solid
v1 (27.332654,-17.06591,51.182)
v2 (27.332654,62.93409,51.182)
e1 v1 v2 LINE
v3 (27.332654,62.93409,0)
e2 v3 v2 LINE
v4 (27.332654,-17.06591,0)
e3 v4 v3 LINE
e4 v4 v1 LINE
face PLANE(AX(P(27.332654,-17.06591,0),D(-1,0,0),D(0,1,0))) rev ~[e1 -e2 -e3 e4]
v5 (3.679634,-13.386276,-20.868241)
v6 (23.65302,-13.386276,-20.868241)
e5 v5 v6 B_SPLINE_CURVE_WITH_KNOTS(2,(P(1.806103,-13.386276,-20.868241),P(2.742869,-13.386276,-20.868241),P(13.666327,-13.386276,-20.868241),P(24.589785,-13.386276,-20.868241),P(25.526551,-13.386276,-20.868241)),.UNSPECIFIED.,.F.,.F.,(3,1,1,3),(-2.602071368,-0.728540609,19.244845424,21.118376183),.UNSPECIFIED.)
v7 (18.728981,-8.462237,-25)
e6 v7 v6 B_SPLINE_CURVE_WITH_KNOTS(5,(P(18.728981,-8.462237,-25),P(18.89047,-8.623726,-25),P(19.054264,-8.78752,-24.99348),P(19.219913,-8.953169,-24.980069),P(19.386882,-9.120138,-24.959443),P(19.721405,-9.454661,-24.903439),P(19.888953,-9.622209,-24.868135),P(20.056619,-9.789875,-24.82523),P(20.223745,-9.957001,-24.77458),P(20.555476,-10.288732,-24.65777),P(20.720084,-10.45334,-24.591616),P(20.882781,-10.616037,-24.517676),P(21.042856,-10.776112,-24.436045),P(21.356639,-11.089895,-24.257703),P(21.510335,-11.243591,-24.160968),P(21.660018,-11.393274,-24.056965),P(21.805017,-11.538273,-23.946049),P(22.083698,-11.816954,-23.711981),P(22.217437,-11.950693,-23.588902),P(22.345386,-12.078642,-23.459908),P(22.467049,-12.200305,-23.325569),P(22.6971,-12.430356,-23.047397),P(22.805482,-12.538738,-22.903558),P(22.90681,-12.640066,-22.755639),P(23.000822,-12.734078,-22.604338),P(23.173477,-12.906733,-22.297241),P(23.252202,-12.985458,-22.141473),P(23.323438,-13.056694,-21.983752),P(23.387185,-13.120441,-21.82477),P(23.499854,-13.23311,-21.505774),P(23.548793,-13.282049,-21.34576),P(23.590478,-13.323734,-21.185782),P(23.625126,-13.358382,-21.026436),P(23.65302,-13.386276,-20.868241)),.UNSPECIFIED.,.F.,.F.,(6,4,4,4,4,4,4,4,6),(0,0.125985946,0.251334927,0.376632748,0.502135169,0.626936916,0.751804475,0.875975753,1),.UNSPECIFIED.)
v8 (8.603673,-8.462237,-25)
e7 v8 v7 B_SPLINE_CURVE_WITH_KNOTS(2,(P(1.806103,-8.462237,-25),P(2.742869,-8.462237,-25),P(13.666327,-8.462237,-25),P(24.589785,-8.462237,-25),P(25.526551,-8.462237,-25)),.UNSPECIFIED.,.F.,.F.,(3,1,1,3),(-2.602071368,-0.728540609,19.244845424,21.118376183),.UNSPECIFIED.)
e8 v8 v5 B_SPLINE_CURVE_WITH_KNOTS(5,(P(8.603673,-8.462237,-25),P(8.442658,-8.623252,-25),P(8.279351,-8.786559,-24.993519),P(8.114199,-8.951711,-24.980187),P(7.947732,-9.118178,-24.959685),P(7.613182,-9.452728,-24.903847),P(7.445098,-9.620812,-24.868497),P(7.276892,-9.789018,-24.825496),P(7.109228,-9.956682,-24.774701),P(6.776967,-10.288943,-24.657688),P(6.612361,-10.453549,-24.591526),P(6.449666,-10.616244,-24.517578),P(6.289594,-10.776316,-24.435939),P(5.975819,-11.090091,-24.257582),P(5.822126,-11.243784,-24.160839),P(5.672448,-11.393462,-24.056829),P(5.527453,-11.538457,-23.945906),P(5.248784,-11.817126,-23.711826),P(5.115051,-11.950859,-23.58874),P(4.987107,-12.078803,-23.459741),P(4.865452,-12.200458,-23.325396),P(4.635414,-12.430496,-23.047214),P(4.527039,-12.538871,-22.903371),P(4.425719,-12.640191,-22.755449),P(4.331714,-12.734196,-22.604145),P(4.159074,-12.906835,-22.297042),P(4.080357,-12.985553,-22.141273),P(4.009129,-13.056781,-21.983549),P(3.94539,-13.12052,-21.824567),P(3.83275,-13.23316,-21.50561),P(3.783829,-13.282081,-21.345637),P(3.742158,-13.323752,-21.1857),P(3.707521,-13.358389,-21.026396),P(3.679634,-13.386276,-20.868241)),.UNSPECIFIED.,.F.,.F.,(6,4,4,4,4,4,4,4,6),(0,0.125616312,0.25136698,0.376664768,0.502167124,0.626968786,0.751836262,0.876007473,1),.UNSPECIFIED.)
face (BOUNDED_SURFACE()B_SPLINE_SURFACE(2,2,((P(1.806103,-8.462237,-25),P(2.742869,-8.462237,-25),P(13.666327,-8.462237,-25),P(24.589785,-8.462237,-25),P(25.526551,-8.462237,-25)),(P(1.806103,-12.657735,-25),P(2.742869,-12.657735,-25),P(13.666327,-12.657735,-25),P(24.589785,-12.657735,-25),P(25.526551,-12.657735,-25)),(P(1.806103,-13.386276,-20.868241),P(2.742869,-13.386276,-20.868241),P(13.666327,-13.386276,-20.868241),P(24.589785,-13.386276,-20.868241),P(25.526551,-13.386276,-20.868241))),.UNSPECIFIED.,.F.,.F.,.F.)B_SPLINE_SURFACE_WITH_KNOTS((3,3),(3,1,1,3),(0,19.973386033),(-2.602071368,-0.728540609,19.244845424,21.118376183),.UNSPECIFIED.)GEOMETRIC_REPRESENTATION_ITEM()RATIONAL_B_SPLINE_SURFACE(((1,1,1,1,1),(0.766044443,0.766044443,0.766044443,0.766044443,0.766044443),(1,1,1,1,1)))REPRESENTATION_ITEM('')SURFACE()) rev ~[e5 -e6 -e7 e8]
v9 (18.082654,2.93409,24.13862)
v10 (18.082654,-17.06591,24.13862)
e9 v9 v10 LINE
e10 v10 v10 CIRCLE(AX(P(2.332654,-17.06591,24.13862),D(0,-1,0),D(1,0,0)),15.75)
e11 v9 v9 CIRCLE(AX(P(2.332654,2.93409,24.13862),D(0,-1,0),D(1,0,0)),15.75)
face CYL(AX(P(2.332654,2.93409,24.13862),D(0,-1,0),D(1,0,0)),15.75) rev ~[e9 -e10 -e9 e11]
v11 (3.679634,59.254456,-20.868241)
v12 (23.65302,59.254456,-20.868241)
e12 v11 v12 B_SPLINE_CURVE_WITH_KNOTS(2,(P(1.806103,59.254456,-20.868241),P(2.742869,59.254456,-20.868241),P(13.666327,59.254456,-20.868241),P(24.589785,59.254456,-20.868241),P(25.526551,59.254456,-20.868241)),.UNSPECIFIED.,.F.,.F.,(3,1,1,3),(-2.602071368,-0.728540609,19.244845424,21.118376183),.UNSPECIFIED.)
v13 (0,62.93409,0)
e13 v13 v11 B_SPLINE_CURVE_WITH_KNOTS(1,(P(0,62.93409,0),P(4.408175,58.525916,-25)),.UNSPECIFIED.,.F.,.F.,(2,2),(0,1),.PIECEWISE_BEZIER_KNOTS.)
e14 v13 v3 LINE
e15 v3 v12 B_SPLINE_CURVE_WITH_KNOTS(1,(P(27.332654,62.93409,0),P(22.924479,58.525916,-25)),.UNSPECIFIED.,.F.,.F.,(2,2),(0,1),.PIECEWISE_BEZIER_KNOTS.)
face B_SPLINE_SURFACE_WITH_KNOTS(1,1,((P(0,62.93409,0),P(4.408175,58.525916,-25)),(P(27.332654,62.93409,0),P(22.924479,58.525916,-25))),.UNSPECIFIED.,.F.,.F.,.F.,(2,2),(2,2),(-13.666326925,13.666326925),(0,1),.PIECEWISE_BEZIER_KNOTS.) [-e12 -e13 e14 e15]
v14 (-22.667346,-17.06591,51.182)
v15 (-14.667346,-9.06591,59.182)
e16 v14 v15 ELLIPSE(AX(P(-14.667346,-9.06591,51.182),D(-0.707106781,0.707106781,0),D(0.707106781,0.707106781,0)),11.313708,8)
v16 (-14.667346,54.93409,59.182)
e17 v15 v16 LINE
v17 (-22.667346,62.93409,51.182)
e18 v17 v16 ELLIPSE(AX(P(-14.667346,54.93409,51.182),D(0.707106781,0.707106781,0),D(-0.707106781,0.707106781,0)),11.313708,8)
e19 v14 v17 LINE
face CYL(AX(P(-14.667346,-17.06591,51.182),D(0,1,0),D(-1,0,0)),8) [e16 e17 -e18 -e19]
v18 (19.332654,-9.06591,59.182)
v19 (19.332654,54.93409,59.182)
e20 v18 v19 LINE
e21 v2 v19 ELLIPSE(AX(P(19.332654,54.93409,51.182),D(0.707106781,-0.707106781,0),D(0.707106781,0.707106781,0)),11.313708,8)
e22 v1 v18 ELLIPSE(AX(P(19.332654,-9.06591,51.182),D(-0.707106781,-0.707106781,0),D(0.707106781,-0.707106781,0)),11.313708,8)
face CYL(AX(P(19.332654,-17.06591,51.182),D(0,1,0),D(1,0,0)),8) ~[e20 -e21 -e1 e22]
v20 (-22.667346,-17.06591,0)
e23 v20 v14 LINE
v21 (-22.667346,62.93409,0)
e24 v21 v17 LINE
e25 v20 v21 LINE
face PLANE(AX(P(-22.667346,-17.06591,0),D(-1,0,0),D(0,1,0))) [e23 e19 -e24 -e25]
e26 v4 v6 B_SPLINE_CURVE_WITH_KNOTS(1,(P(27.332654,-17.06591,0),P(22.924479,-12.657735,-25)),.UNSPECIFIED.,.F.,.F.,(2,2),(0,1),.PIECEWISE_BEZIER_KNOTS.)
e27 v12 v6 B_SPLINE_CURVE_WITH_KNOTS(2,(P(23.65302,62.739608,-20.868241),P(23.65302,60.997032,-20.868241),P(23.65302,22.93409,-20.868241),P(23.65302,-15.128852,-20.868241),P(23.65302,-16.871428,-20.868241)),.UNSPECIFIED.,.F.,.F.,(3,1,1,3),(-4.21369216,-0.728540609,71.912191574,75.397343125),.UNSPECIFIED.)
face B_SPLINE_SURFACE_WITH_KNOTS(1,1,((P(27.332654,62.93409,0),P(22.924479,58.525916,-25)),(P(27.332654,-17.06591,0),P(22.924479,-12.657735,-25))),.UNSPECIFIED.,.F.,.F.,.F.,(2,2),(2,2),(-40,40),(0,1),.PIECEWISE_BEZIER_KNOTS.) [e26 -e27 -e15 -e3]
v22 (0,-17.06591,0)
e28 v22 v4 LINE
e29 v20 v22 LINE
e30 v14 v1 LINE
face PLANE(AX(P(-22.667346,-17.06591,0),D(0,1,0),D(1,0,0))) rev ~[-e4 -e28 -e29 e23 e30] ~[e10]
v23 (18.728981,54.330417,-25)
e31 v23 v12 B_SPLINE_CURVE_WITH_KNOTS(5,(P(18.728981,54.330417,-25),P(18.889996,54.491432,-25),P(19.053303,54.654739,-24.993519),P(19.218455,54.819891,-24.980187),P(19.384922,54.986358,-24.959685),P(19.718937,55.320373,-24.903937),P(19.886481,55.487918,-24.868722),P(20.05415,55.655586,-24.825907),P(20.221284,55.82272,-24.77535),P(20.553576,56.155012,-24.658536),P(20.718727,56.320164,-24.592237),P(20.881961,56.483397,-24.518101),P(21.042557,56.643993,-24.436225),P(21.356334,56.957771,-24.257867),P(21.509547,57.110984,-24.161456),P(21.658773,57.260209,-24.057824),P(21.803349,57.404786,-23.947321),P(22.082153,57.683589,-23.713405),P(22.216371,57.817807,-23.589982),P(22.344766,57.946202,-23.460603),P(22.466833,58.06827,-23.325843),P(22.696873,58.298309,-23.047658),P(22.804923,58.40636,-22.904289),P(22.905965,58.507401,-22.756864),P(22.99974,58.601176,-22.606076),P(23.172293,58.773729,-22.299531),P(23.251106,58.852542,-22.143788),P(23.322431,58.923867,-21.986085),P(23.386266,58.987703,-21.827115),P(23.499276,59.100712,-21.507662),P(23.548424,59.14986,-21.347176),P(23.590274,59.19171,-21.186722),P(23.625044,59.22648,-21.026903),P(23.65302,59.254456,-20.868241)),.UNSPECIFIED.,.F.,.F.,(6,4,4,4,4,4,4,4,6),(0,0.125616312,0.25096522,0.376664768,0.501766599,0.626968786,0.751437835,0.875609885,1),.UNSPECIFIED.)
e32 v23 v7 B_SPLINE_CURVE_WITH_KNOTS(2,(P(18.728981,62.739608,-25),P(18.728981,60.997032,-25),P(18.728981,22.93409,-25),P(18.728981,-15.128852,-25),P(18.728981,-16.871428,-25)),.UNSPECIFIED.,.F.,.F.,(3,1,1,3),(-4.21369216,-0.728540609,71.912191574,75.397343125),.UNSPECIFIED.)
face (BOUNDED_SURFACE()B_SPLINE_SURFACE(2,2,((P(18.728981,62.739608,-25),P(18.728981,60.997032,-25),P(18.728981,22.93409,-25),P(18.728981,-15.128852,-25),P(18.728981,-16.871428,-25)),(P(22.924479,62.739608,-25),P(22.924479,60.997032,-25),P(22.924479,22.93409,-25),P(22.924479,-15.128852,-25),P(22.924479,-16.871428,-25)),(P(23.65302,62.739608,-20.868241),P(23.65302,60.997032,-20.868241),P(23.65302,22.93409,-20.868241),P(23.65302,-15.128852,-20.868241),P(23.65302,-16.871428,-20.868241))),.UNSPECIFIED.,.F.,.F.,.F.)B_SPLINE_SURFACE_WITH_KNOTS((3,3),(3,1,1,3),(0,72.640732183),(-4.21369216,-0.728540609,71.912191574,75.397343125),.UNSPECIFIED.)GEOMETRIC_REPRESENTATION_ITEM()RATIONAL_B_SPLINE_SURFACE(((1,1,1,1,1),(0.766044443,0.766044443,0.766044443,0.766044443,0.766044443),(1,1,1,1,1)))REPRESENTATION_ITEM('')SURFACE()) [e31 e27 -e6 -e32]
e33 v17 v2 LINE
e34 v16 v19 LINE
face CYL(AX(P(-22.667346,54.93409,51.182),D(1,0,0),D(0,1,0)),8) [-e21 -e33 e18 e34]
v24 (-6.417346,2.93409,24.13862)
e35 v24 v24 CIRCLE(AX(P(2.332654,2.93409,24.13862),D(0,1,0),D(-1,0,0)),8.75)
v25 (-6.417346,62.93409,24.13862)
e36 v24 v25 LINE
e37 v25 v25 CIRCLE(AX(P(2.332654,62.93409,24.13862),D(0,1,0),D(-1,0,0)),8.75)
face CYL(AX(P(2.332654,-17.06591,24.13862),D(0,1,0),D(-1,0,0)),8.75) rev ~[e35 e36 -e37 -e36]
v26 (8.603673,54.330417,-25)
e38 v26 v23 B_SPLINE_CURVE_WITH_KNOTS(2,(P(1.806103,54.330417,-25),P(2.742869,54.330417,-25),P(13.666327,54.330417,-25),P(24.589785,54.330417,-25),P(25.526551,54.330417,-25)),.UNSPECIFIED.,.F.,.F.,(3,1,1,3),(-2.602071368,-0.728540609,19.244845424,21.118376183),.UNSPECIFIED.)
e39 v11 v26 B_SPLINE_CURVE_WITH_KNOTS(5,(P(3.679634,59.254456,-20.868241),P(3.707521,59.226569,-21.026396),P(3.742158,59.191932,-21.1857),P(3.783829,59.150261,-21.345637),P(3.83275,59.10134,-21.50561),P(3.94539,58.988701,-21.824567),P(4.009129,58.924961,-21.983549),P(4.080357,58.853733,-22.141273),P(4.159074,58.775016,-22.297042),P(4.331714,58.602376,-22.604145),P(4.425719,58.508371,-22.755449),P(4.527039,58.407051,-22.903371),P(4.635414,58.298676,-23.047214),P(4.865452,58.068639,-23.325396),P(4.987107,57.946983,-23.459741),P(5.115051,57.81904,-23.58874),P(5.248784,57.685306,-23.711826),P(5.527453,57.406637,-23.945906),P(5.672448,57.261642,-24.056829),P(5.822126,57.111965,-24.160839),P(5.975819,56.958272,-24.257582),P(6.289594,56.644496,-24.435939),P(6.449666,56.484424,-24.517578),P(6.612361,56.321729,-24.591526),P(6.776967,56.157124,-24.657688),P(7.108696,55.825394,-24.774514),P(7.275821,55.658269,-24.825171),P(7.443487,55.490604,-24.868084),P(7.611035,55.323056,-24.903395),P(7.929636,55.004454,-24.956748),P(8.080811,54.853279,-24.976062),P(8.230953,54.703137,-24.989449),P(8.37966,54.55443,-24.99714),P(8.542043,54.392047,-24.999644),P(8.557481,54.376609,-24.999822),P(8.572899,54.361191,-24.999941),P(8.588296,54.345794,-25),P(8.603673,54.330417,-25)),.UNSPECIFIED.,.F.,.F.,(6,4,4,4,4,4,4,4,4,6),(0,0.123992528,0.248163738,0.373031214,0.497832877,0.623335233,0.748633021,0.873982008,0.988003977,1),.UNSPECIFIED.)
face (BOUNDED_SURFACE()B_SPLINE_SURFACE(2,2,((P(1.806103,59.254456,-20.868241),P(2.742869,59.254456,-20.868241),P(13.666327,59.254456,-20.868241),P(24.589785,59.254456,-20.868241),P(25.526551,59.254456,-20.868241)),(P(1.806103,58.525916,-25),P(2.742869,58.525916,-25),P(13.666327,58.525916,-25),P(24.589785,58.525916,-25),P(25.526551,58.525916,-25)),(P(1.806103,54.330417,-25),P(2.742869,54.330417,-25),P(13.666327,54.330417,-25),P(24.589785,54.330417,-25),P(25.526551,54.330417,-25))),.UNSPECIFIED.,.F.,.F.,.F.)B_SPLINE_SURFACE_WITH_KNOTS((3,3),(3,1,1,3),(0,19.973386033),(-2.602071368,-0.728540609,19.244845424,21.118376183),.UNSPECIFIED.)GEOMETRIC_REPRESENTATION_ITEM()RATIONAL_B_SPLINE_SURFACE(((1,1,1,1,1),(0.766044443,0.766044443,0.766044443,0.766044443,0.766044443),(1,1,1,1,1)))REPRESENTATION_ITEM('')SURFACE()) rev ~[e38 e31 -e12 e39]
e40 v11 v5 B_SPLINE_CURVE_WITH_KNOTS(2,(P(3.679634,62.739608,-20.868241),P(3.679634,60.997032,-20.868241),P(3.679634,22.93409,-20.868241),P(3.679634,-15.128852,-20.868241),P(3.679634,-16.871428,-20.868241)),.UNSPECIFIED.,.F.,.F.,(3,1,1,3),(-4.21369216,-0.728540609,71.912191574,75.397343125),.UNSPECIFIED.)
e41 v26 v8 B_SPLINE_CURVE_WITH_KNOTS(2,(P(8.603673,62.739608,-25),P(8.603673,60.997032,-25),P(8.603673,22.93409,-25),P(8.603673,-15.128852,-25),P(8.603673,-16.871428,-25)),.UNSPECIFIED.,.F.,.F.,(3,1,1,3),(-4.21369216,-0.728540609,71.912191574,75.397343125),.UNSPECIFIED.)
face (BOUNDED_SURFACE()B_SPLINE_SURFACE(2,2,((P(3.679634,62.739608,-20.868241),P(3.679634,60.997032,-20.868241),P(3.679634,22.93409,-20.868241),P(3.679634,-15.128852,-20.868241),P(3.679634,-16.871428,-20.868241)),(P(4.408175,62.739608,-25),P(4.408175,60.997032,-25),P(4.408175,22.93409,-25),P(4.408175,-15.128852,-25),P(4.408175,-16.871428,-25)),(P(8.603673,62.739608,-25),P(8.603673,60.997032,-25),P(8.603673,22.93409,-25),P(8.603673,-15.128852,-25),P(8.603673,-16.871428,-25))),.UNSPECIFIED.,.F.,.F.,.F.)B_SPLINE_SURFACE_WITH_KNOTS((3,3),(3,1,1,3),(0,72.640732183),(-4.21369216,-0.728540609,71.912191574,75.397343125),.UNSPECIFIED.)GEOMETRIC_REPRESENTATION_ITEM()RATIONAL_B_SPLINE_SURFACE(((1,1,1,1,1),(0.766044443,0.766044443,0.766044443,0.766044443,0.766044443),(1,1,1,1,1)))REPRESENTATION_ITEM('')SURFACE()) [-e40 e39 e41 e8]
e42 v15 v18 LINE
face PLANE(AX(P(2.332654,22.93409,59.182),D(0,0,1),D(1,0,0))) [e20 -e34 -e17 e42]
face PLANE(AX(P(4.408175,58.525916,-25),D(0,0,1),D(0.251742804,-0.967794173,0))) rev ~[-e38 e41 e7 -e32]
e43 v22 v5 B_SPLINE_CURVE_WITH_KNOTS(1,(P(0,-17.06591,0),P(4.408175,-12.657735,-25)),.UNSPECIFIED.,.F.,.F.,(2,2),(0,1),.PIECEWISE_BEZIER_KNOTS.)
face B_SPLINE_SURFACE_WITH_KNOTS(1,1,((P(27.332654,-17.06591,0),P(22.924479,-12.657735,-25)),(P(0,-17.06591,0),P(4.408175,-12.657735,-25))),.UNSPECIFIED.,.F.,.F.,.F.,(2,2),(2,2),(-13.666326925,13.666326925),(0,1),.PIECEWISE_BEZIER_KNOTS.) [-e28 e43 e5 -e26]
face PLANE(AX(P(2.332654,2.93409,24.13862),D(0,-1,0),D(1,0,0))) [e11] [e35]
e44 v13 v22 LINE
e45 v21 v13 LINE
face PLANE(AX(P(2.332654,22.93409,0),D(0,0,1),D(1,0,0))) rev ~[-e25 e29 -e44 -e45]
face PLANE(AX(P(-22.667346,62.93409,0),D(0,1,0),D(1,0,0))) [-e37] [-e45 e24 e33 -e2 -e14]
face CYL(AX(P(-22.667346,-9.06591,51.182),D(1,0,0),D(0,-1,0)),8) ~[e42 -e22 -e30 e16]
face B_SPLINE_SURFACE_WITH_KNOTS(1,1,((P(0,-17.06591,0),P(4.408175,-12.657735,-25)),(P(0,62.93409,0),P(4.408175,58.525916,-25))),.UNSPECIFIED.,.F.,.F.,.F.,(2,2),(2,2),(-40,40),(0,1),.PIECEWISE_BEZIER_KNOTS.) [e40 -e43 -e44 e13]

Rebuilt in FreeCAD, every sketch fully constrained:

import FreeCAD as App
import Part
import Sketcher

V = App.Vector


def edges_at(feature, points):
    """Names of the edges that pass closest to the given points."""
    edges = feature.Shape.Edges
    near = lambda p: min(range(len(edges)), key=lambda i: edges[i].distToShape(Part.Vertex(*p))[0])
    return sorted({f"Edge{near(p) + 1}" for p in points})

doc = App.newDocument("Part")
body = doc.addObject("PartDesign::Body", "Body")

sketch1 = doc.addObject("Sketcher::SketchObject", "Sketch")
body.addObject(sketch1)
sketch1.AttachmentSupport = (doc.XY_Plane, [""])
sketch1.MapMode = "FlatFace"
sketch1.addGeometry(Part.LineSegment(V(-23, 63, 0), V(-23, -17, 0)), False)
sketch1.addGeometry(Part.LineSegment(V(-23, -17, 0), V(27, -17, 0)), False)
sketch1.addGeometry(Part.LineSegment(V(27, -17, 0), V(27, 63, 0)), False)
sketch1.addGeometry(Part.LineSegment(V(27, 63, 0), V(-23, 63, 0)), False)
sketch1.addConstraint(Sketcher.Constraint("Coincident", 0, 2, 1, 1))
sketch1.addConstraint(Sketcher.Constraint("Coincident", 1, 2, 2, 1))
sketch1.addConstraint(Sketcher.Constraint("Coincident", 2, 2, 3, 1))
sketch1.addConstraint(Sketcher.Constraint("Coincident", 3, 2, 0, 1))
sketch1.addConstraint(Sketcher.Constraint("Vertical", 0))
sketch1.addConstraint(Sketcher.Constraint("Horizontal", 1))
sketch1.addConstraint(Sketcher.Constraint("Vertical", 2))
sketch1.addConstraint(Sketcher.Constraint("Horizontal", 3))
sketch1.addConstraint(Sketcher.Constraint("DistanceX", 1, 1, 1, 2, 50.0))
sketch1.addConstraint(Sketcher.Constraint("DistanceY", 0, 2, 0, 1, 80.0))
sketch1.addConstraint(Sketcher.Constraint("DistanceY", 0, 2, -1, 1, 17.06591))
sketch1.addConstraint(Sketcher.Constraint("DistanceX", 0, 2, -1, 1, 22.667346))
pad1 = doc.addObject("PartDesign::Pad", "Pad")
body.addObject(pad1)
pad1.Profile = sketch1
pad1.Length = 59.182
doc.recompute()

fillet = doc.addObject("PartDesign::Fillet", "Fillet")
body.addObject(fillet)
fillet.Base = (pad1, edges_at(pad1, [
    (-22.667, 22.934, 59.182),
    (2.333, -17.066, 59.182),
    (27.333, 22.934, 59.182),
    (2.333, 62.934, 59.182),
]))
fillet.Radius = 8

sketch2 = doc.addObject("Sketcher::SketchObject", "Sketch001")
body.addObject(sketch2)
sketch2.AttachmentSupport = (doc.XZ_Plane, [""])
sketch2.MapMode = "FlatFace"
sketch2.AttachmentOffset = App.Placement(V(0, 0, 17.06591), App.Rotation())
sketch2.addGeometry(Part.Circle(V(2, 24, 0), V(0, 0, 1), 9), False)
sketch2.addConstraint(Sketcher.Constraint("Diameter", 0, 17.5))
sketch2.addConstraint(Sketcher.Constraint("DistanceY", -1, 1, 0, 3, 24.13862))
sketch2.addConstraint(Sketcher.Constraint("DistanceX", -1, 1, 0, 3, 2.332654))
doc.recompute()
hole = doc.addObject("PartDesign::Hole", "Hole")
body.addObject(hole)
hole.Profile = sketch2
hole.ThreadType = "None"
hole.Diameter = 17.5
hole.DepthType = "ThroughAll"
hole.HoleCutType = "Counterbore"
hole.HoleCutDiameter = 31.5
hole.HoleCutDepth = 20

sketch3 = doc.addObject("Sketcher::SketchObject", "Sketch002")
body.addObject(sketch3)
sketch3.AttachmentSupport = (doc.XY_Plane, [""])
sketch3.MapMode = "FlatFace"
sketch3.addGeometry(Part.LineSegment(V(0, -17, 0), V(0, 63, 0)), False)
sketch3.addGeometry(Part.LineSegment(V(0, 63, 0), V(27, 63, 0)), False)
sketch3.addGeometry(Part.LineSegment(V(27, 63, 0), V(27, -17, 0)), False)
sketch3.addGeometry(Part.LineSegment(V(27, -17, 0), V(0, -17, 0)), False)
sketch3.addConstraint(Sketcher.Constraint("Coincident", 0, 2, 1, 1))
sketch3.addConstraint(Sketcher.Constraint("Coincident", 1, 2, 2, 1))
sketch3.addConstraint(Sketcher.Constraint("Coincident", 2, 2, 3, 1))
sketch3.addConstraint(Sketcher.Constraint("Coincident", 3, 2, 0, 1))
sketch3.addConstraint(Sketcher.Constraint("Vertical", 0))
sketch3.addConstraint(Sketcher.Constraint("Horizontal", 1))
sketch3.addConstraint(Sketcher.Constraint("Vertical", 2))
sketch3.addConstraint(Sketcher.Constraint("Horizontal", 3))
sketch3.addConstraint(Sketcher.Constraint("PointOnObject", 0, 2, -2))
sketch3.addConstraint(Sketcher.Constraint("DistanceY", 0, 1, 0, 2, 80.0))
sketch3.addConstraint(Sketcher.Constraint("DistanceX", 1, 1, 1, 2, 27.332654))
sketch3.addConstraint(Sketcher.Constraint("DistanceY", -1, 1, 0, 2, 62.93409))
pad2 = doc.addObject("PartDesign::Pad", "Pad001")
body.addObject(pad2)
pad2.Profile = sketch3
pad2.Length = 25
pad2.Reversed = True
pad2.TaperAngle = -10
doc.recompute()

fillet2 = doc.addObject("PartDesign::Fillet", "Fillet001")
body.addObject(fillet2)
fillet2.Base = (pad2, edges_at(pad2, [
    (22.924, 22.934, -25),
    (13.666, -12.658, -25),
    (4.408, 22.934, -25),
    (13.666, 58.526, -25),
]))
fillet2.Radius = 5

doc.recompute()
